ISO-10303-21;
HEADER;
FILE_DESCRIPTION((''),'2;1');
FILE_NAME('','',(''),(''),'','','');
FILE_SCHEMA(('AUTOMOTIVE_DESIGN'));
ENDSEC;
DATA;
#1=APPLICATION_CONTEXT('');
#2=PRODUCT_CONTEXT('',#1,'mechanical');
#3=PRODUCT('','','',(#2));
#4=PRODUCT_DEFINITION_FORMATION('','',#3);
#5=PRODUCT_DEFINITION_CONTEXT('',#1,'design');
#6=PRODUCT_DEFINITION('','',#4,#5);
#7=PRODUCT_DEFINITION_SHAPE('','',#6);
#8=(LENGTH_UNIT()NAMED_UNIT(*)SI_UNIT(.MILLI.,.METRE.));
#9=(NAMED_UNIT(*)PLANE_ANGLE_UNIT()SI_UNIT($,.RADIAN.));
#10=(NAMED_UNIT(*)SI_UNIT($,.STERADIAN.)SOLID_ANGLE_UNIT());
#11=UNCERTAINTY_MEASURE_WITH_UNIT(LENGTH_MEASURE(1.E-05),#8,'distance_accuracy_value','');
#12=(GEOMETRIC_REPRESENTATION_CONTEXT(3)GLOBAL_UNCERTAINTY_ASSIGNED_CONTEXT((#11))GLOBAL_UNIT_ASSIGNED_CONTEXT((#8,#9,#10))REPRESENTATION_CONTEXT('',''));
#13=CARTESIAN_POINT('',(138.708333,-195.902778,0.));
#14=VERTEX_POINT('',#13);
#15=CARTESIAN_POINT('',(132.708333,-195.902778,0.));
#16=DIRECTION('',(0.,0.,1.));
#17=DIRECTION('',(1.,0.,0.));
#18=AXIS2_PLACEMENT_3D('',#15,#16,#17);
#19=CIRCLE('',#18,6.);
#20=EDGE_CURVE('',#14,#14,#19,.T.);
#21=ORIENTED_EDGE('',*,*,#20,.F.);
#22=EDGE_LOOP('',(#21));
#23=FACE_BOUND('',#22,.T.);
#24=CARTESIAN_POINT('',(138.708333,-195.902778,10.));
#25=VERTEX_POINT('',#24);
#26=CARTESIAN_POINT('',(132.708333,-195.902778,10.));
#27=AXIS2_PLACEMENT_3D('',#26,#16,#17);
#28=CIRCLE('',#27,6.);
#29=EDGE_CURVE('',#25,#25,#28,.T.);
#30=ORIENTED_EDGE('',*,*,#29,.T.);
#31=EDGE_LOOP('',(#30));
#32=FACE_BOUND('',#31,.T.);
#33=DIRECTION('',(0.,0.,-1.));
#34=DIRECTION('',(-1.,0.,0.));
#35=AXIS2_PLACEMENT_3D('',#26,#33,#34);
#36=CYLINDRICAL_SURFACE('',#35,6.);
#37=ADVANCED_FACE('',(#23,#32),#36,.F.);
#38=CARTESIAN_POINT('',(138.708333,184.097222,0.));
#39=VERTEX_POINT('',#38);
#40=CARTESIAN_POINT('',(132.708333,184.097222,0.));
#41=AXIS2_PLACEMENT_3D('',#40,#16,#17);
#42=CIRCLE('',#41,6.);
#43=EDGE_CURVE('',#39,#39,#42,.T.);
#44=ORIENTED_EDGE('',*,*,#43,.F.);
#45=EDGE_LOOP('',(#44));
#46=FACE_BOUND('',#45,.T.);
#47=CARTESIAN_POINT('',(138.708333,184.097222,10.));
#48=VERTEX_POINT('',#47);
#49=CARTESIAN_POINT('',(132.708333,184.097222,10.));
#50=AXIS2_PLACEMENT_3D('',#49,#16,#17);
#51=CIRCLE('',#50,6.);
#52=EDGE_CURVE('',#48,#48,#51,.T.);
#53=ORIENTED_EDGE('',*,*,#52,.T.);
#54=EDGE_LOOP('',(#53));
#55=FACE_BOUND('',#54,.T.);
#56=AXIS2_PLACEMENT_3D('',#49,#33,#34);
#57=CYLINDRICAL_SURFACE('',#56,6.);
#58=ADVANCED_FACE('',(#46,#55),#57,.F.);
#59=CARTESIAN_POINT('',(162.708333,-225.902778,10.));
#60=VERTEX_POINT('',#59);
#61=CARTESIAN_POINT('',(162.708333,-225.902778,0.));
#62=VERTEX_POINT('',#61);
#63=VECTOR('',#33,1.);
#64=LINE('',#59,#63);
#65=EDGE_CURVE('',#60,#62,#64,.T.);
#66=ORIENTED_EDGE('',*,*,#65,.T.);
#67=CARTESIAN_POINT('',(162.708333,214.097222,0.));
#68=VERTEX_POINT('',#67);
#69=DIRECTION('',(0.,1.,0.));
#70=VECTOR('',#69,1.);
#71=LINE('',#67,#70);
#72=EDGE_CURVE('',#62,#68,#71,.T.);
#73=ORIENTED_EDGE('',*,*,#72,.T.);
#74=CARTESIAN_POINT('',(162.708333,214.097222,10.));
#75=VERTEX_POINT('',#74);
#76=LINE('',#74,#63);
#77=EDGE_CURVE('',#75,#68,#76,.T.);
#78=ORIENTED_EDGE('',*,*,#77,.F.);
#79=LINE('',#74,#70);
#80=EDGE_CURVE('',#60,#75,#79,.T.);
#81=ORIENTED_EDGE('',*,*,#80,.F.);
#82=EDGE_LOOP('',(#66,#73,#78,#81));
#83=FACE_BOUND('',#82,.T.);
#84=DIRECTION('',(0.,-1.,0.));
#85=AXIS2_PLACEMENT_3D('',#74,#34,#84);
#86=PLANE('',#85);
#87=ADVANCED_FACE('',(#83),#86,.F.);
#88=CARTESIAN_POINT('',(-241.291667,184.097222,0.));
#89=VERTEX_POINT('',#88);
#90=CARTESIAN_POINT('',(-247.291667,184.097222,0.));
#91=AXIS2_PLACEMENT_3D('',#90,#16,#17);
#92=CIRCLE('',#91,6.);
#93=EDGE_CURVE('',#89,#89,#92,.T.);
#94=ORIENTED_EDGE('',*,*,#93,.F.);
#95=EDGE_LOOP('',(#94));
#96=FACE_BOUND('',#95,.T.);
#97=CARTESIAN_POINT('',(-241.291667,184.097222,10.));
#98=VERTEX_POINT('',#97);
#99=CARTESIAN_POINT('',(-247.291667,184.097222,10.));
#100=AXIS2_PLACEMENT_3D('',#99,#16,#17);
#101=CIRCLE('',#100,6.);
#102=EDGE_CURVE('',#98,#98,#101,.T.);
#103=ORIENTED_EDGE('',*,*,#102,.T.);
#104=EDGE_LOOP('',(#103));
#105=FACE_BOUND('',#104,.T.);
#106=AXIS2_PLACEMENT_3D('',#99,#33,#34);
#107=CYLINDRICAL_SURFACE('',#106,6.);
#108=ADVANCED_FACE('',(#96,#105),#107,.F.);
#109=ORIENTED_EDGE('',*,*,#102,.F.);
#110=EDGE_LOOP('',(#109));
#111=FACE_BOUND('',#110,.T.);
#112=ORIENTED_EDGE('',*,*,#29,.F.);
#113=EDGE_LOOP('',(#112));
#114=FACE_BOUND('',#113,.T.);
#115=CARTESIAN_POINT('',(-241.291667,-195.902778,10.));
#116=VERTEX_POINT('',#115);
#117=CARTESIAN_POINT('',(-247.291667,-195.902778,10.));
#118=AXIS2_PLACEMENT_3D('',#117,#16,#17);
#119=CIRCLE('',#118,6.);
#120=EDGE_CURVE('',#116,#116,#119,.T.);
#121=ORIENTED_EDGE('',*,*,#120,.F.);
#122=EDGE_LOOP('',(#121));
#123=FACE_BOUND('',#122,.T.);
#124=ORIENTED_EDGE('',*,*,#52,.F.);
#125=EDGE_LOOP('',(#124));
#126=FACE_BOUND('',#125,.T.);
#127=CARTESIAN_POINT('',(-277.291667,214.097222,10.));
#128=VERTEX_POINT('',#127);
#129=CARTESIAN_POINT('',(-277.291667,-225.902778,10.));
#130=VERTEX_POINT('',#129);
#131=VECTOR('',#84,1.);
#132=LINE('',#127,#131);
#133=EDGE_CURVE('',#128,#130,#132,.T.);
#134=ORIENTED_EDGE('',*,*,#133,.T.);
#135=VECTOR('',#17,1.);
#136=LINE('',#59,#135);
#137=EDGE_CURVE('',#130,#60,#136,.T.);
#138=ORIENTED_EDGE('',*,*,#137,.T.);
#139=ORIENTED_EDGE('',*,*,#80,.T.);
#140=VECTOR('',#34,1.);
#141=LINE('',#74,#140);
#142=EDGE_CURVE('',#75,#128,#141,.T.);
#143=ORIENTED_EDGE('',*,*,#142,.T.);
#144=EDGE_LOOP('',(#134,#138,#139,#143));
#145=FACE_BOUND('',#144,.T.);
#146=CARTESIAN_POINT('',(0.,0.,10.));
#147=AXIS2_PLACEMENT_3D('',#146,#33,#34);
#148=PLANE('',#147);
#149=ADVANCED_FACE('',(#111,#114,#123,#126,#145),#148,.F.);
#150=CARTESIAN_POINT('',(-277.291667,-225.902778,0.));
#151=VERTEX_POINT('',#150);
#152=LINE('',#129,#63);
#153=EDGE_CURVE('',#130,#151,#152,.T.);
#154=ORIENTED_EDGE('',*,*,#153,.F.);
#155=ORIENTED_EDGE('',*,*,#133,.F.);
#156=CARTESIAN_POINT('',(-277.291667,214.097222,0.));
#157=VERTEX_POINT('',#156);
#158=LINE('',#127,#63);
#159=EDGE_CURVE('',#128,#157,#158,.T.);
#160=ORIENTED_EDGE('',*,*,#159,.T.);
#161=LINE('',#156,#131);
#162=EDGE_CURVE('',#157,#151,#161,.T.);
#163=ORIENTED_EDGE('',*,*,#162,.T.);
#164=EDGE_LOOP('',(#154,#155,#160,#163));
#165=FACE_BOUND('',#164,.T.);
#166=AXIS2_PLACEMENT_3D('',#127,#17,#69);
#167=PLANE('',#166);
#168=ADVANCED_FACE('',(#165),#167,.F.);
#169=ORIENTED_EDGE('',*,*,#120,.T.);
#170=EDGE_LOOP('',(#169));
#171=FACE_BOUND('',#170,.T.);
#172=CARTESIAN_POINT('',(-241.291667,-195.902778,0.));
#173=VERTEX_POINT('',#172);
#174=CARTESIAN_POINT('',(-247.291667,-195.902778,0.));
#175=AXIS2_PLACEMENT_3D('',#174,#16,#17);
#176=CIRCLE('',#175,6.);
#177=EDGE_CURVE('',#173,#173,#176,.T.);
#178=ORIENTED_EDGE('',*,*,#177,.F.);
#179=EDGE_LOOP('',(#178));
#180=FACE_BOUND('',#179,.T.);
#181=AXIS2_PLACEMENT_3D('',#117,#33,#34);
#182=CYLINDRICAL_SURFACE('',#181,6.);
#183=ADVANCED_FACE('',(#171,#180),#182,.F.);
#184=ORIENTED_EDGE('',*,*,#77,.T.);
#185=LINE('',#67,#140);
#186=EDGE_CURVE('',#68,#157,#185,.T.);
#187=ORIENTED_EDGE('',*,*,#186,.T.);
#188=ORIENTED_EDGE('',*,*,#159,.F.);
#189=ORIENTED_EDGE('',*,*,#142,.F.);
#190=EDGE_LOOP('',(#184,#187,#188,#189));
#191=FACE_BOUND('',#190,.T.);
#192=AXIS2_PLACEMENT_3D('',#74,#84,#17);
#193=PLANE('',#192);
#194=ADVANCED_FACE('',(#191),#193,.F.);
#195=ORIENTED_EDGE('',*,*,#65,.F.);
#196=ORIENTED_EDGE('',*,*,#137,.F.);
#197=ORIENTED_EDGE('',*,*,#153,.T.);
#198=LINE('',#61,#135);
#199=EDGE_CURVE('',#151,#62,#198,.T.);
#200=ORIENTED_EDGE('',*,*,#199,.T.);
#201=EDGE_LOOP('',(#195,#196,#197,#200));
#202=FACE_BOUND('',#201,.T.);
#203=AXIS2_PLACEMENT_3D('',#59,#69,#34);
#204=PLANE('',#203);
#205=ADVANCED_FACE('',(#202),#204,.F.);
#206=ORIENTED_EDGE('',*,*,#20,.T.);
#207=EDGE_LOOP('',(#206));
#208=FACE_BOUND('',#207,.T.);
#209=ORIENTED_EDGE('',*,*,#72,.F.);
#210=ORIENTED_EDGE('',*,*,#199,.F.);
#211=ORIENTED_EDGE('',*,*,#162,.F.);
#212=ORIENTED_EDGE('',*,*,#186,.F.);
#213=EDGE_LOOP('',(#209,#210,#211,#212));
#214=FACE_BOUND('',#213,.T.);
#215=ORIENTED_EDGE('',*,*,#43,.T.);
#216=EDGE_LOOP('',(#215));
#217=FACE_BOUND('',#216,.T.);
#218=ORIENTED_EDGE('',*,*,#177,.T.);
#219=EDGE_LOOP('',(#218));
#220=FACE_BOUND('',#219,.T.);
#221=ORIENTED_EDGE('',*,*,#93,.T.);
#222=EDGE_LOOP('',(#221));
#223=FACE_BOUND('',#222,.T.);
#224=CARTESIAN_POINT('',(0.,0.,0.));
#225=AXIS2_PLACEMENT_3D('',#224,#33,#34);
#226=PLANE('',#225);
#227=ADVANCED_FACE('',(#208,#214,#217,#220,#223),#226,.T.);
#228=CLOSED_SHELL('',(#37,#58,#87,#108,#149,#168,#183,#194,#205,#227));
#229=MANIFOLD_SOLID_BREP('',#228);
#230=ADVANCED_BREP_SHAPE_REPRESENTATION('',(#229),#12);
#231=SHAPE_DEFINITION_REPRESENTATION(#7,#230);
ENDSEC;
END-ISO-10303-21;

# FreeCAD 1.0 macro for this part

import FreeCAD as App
import Part
import Sketcher

V = App.Vector
Q = App.Units.Quantity


def add_polygon(sketch, points):
    """Adds a closed chain of lines whose ends are joined by coincident constraints."""
    first, n = sketch.GeometryCount, len(points)
    for a, b in zip(points, points[1:] + points[:1]):
        sketch.addGeometry(Part.LineSegment(App.Vector(*a, 0), App.Vector(*b, 0)), False)
    for i in range(n):
        sketch.addConstraint(Sketcher.Constraint("Coincident", first + i, 2, first + (i + 1) % n, 1))

doc = App.newDocument("Part")
body = doc.addObject("PartDesign::Body", "Body")

# Sketch on XY plane
sketch1 = body.newObject("Sketcher::SketchObject", "Sketch")
sketch1.AttachmentSupport = (doc.getObject("XY_Plane"), [""])
sketch1.MapMode = "FlatFace"
add_polygon(sketch1, [(-277.291667, 214.097222), (-277.291667, -225.902778), (162.708333, -225.902778), (162.708333, 214.097222)])  # lines 0-3
sketch1.addGeometry(Part.Circle(V(-247.291667, -195.902778, 0), V(0, 0, 1), 6), False)  # 4
sketch1.addGeometry(Part.Circle(V(132.708333, -195.902778, 0), V(0, 0, 1), 6), False)  # 5
sketch1.addGeometry(Part.Circle(V(-247.291667, 184.097222, 0), V(0, 0, 1), 6), False)  # 6
sketch1.addGeometry(Part.Circle(V(132.708333, 184.097222, 0), V(0, 0, 1), 6), False)  # 7
sketch1.addConstraint([
    Sketcher.Constraint("Vertical", 0),
    Sketcher.Constraint("Horizontal", 1),
    Sketcher.Constraint("Vertical", 2),
    Sketcher.Constraint("Horizontal", 3),
    Sketcher.Constraint("Equal", 4, 5),
    Sketcher.Constraint("Equal", 5, 6),
    Sketcher.Constraint("Equal", 6, 7),
    Sketcher.Constraint("Horizontal", 4, 3, 5, 3),
    Sketcher.Constraint("Horizontal", 6, 3, 7, 3),
    Sketcher.Constraint("Vertical", 4, 3, 6, 3),
    Sketcher.Constraint("Vertical", 5, 3, 7, 3),
    Sketcher.Constraint("Equal", 3, 0),
    Sketcher.Constraint("Diameter", 4, Q("12 mm")),
    Sketcher.Constraint("DistanceX", 1, 1, 1, 2, Q("440 mm")),
    Sketcher.Constraint("DistanceX", 4, 3, 5, 3, Q("380 mm")),
    Sketcher.Constraint("DistanceY", 4, 3, 6, 3, Q("380 mm")),
    Sketcher.Constraint("DistanceX", 0, 2, 4, 3, Q("30 mm")),
    Sketcher.Constraint("DistanceY", 0, 2, 4, 3, Q("30 mm")),
    Sketcher.Constraint("DistanceX", 4, 3, -1, 1, Q("247.291667 mm")),
    Sketcher.Constraint("DistanceY", 4, 3, -1, 1, Q("195.902778 mm")),
])
pad1 = body.newObject("PartDesign::Pad", "Pad")
pad1.Profile = sketch1
pad1.Length = 10

doc.recompute()
